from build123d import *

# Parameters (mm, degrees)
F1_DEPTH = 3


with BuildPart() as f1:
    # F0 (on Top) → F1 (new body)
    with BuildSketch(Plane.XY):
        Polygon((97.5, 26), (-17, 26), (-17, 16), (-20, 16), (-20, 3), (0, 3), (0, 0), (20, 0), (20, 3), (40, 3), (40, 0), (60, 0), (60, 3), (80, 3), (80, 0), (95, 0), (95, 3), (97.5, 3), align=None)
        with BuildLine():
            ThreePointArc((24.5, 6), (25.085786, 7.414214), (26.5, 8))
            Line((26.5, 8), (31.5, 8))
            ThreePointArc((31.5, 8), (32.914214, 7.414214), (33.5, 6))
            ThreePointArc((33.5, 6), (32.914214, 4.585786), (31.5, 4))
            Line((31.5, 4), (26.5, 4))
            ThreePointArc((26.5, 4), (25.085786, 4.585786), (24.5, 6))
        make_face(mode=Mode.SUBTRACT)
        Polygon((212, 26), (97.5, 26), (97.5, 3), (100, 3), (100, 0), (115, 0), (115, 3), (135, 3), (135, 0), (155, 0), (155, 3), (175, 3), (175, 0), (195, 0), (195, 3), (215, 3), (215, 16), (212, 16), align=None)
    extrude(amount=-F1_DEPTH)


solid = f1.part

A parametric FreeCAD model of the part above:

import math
import FreeCAD as App
import Part
import Sketcher
from FreeCAD import Vector
Q = App.Units.Quantity

doc = App.newDocument("Part")
body = doc.addObject("PartDesign::Body", "Body")

sketch1 = body.newObject("Sketcher::SketchObject", "Sketch")
sketch1.AttachmentSupport = (doc.getObject("XY_Plane"), [""])
sketch1.MapMode = "FlatFace"
sketch1.addGeometry(Part.LineSegment(Vector(-17, 26, 0), Vector(-17, 16, 0)), False)
sketch1.addGeometry(Part.LineSegment(Vector(-17, 16, 0), Vector(-20, 16, 0)), False)
sketch1.addGeometry(Part.LineSegment(Vector(-20, 16, 0), Vector(-20, 3, 0)), False)
sketch1.addGeometry(Part.LineSegment(Vector(-20, 3, 0), Vector(0, 3, 0)), False)
sketch1.addGeometry(Part.LineSegment(Vector(0, 3, 0), Vector(0, 0, 0)), False)
sketch1.addGeometry(Part.LineSegment(Vector(0, 0, 0), Vector(20, 0, 0)), False)
sketch1.addGeometry(Part.LineSegment(Vector(20, 0, 0), Vector(20, 3, 0)), False)
sketch1.addGeometry(Part.LineSegment(Vector(20, 3, 0), Vector(40, 3, 0)), False)
sketch1.addGeometry(Part.LineSegment(Vector(40, 3, 0), Vector(40, 0, 0)), False)
sketch1.addGeometry(Part.LineSegment(Vector(40, 0, 0), Vector(60, 0, 0)), False)
sketch1.addGeometry(Part.LineSegment(Vector(60, 0, 0), Vector(60, 3, 0)), False)
sketch1.addGeometry(Part.LineSegment(Vector(60, 3, 0), Vector(80, 3, 0)), False)
sketch1.addGeometry(Part.LineSegment(Vector(80, 3, 0), Vector(80, 0, 0)), False)
sketch1.addGeometry(Part.LineSegment(Vector(80, 0, 0), Vector(95, 0, 0)), False)
sketch1.addGeometry(Part.LineSegment(Vector(95, 0, 0), Vector(95, 3, 0)), False)
sketch1.addGeometry(Part.LineSegment(Vector(95, 3, 0), Vector(100, 3, 0)), False)
sketch1.addGeometry(Part.LineSegment(Vector(100, 3, 0), Vector(100, 0, 0)), False)
sketch1.addGeometry(Part.LineSegment(Vector(100, 0, 0), Vector(115, 0, 0)), False)
sketch1.addGeometry(Part.LineSegment(Vector(115, 0, 0), Vector(115, 3, 0)), False)
sketch1.addGeometry(Part.LineSegment(Vector(115, 3, 0), Vector(135, 3, 0)), False)
sketch1.addGeometry(Part.LineSegment(Vector(135, 3, 0), Vector(135, 0, 0)), False)
sketch1.addGeometry(Part.LineSegment(Vector(135, 0, 0), Vector(155, 0, 0)), False)
sketch1.addGeometry(Part.LineSegment(Vector(155, 0, 0), Vector(155, 3, 0)), False)
sketch1.addGeometry(Part.LineSegment(Vector(155, 3, 0), Vector(175, 3, 0)), False)
sketch1.addGeometry(Part.LineSegment(Vector(175, 3, 0), Vector(175, 0, 0)), False)
sketch1.addGeometry(Part.LineSegment(Vector(175, 0, 0), Vector(195, 0, 0)), False)
sketch1.addGeometry(Part.LineSegment(Vector(195, 0, 0), Vector(195, 3, 0)), False)
sketch1.addGeometry(Part.LineSegment(Vector(195, 3, 0), Vector(215, 3, 0)), False)
sketch1.addGeometry(Part.LineSegment(Vector(215, 3, 0), Vector(215, 16, 0)), False)
sketch1.addGeometry(Part.LineSegment(Vector(215, 16, 0), Vector(212, 16, 0)), False)
sketch1.addGeometry(Part.LineSegment(Vector(212, 16, 0), Vector(212, 26, 0)), False)
sketch1.addGeometry(Part.LineSegment(Vector(212, 26, 0), Vector(-17, 26, 0)), False)
sketch1.addGeometry(Part.ArcOfCircle(Part.Circle(Vector(26.5, 6, 0), Vector(0, 0, 1), 2), math.radians(180), math.radians(270)), False)
sketch1.addGeometry(Part.ArcOfCircle(Part.Circle(Vector(26.5, 6, 0), Vector(0, 0, 1), 2), math.radians(90), math.radians(180)), False)
sketch1.addGeometry(Part.LineSegment(Vector(26.5, 8, 0), Vector(31.5, 8, 0)), False)
sketch1.addGeometry(Part.ArcOfCircle(Part.Circle(Vector(31.5, 6, 0), Vector(0, 0, 1), 2), math.radians(0), math.radians(90)), False)
sketch1.addGeometry(Part.ArcOfCircle(Part.Circle(Vector(31.5, 6, 0), Vector(0, 0, 1), 2), math.radians(-90), math.radians(0)), False)
sketch1.addGeometry(Part.LineSegment(Vector(31.5, 4, 0), Vector(26.5, 4, 0)), False)
sketch1.addConstraint(Sketcher.Constraint("Coincident", 0, 2, 1, 1))
sketch1.addConstraint(Sketcher.Constraint("Coincident", 1, 2, 2, 1))
sketch1.addConstraint(Sketcher.Constraint("Coincident", 2, 2, 3, 1))
sketch1.addConstraint(Sketcher.Constraint("Coincident", 3, 2, 4, 1))
sketch1.addConstraint(Sketcher.Constraint("Coincident", 4, 2, 5, 1))
sketch1.addConstraint(Sketcher.Constraint("Coincident", 5, 2, 6, 1))
sketch1.addConstraint(Sketcher.Constraint("Coincident", 6, 2, 7, 1))
sketch1.addConstraint(Sketcher.Constraint("Coincident", 7, 2, 8, 1))
sketch1.addConstraint(Sketcher.Constraint("Coincident", 8, 2, 9, 1))
sketch1.addConstraint(Sketcher.Constraint("Coincident", 9, 2, 10, 1))
sketch1.addConstraint(Sketcher.Constraint("Coincident", 10, 2, 11, 1))
sketch1.addConstraint(Sketcher.Constraint("Coincident", 11, 2, 12, 1))
sketch1.addConstraint(Sketcher.Constraint("Coincident", 12, 2, 13, 1))
sketch1.addConstraint(Sketcher.Constraint("Coincident", 13, 2, 14, 1))
sketch1.addConstraint(Sketcher.Constraint("Coincident", 14, 2, 15, 1))
sketch1.addConstraint(Sketcher.Constraint("Coincident", 15, 2, 16, 1))
sketch1.addConstraint(Sketcher.Constraint("Coincident", 16, 2, 17, 1))
sketch1.addConstraint(Sketcher.Constraint("Coincident", 17, 2, 18, 1))
sketch1.addConstraint(Sketcher.Constraint("Coincident", 18, 2, 19, 1))
sketch1.addConstraint(Sketcher.Constraint("Coincident", 19, 2, 20, 1))
sketch1.addConstraint(Sketcher.Constraint("Coincident", 20, 2, 21, 1))
sketch1.addConstraint(Sketcher.Constraint("Coincident", 21, 2, 22, 1))
sketch1.addConstraint(Sketcher.Constraint("Coincident", 22, 2, 23, 1))
sketch1.addConstraint(Sketcher.Constraint("Coincident", 23, 2, 24, 1))
sketch1.addConstraint(Sketcher.Constraint("Coincident", 24, 2, 25, 1))
sketch1.addConstraint(Sketcher.Constraint("Coincident", 25, 2, 26, 1))
sketch1.addConstraint(Sketcher.Constraint("Coincident", 26, 2, 27, 1))
sketch1.addConstraint(Sketcher.Constraint("Coincident", 27, 2, 28, 1))
sketch1.addConstraint(Sketcher.Constraint("Coincident", 28, 2, 29, 1))
sketch1.addConstraint(Sketcher.Constraint("Coincident", 29, 2, 30, 1))
sketch1.addConstraint(Sketcher.Constraint("Coincident", 30, 2, 31, 1))
sketch1.addConstraint(Sketcher.Constraint("Coincident", 31, 2, 0, 1))
sketch1.addConstraint(Sketcher.Constraint("Tangent", 32, 1, 33, 2))
sketch1.addConstraint(Sketcher.Constraint("Tangent", 33, 1, 34, 1))
sketch1.addConstraint(Sketcher.Constraint("Tangent", 34, 2, 35, 2))
sketch1.addConstraint(Sketcher.Constraint("Tangent", 35, 1, 36, 2))
sketch1.addConstraint(Sketcher.Constraint("Tangent", 36, 1, 37, 1))
sketch1.addConstraint(Sketcher.Constraint("Tangent", 37, 2, 32, 2))
sketch1.addConstraint(Sketcher.Constraint("Vertical", 0))
sketch1.addConstraint(Sketcher.Constraint("Horizontal", 1))
sketch1.addConstraint(Sketcher.Constraint("Vertical", 2))
sketch1.addConstraint(Sketcher.Constraint("Horizontal", 3))
sketch1.addConstraint(Sketcher.Constraint("Vertical", 4))
sketch1.addConstraint(Sketcher.Constraint("Horizontal", 5))
sketch1.addConstraint(Sketcher.Constraint("Vertical", 6))
sketch1.addConstraint(Sketcher.Constraint("Horizontal", 7))
sketch1.addConstraint(Sketcher.Constraint("Vertical", 8))
sketch1.addConstraint(Sketcher.Constraint("Horizontal", 9))
sketch1.addConstraint(Sketcher.Constraint("Vertical", 10))
sketch1.addConstraint(Sketcher.Constraint("Horizontal", 11))
sketch1.addConstraint(Sketcher.Constraint("Vertical", 12))
sketch1.addConstraint(Sketcher.Constraint("Horizontal", 13))
sketch1.addConstraint(Sketcher.Constraint("Vertical", 14))
sketch1.addConstraint(Sketcher.Constraint("Horizontal", 15))
sketch1.addConstraint(Sketcher.Constraint("Vertical", 16))
sketch1.addConstraint(Sketcher.Constraint("Horizontal", 17))
sketch1.addConstraint(Sketcher.Constraint("Vertical", 18))
sketch1.addConstraint(Sketcher.Constraint("Horizontal", 19))
sketch1.addConstraint(Sketcher.Constraint("Vertical", 20))
sketch1.addConstraint(Sketcher.Constraint("Horizontal", 21))
sketch1.addConstraint(Sketcher.Constraint("Vertical", 22))
sketch1.addConstraint(Sketcher.Constraint("Horizontal", 23))
sketch1.addConstraint(Sketcher.Constraint("Vertical", 24))
sketch1.addConstraint(Sketcher.Constraint("Horizontal", 25))
sketch1.addConstraint(Sketcher.Constraint("Vertical", 26))
sketch1.addConstraint(Sketcher.Constraint("Horizontal", 27))
sketch1.addConstraint(Sketcher.Constraint("Vertical", 28))
sketch1.addConstraint(Sketcher.Constraint("Horizontal", 29))
sketch1.addConstraint(Sketcher.Constraint("Vertical", 30))
sketch1.addConstraint(Sketcher.Constraint("Horizontal", 31))
sketch1.addConstraint(Sketcher.Constraint("Horizontal", 34))
sketch1.addConstraint(Sketcher.Constraint("Horizontal", 37))
sketch1.addConstraint(Sketcher.Constraint("Coincident", 4, 2, -1, 1))
sketch1.addConstraint(Sketcher.Constraint("Equal", 32, 33))
sketch1.addConstraint(Sketcher.Constraint("Equal", 33, 35))
sketch1.addConstraint(Sketcher.Constraint("Symmetric", 2, 2, 6, 2, -2))
sketch1.addConstraint(Sketcher.Constraint("PointOnObject", 8, 2, -1))
sketch1.addConstraint(Sketcher.Constraint("PointOnObject", 12, 2, -1))
sketch1.addConstraint(Sketcher.Constraint("PointOnObject", 16, 2, -1))
sketch1.addConstraint(Sketcher.Constraint("PointOnObject", 20, 2, -1))
sketch1.addConstraint(Sketcher.Constraint("PointOnObject", 24, 2, -1))
sketch1.addConstraint(Sketcher.Constraint("Horizontal", 7, 2, 10, 2))
sketch1.addConstraint(Sketcher.Constraint("Horizontal", 11, 2, 14, 2))
sketch1.addConstraint(Sketcher.Constraint("Horizontal", 15, 2, 18, 2))
sketch1.addConstraint(Sketcher.Constraint("Horizontal", 19, 2, 22, 2))
sketch1.addConstraint(Sketcher.Constraint("Horizontal", 23, 2, 26, 2))
sketch1.addConstraint(Sketcher.Constraint("Horizontal", 1, 2, 28, 2))
sketch1.addConstraint(Sketcher.Constraint("Horizontal", 36, 3, 32, 1))
sketch1.addConstraint(Sketcher.Constraint("Horizontal", 32, 1, 35, 1))
sketch1.addConstraint(Sketcher.Constraint("Equal", 5, 7))
sketch1.addConstraint(Sketcher.Constraint("Equal", 7, 9))
sketch1.addConstraint(Sketcher.Constraint("Equal", 9, 11))
sketch1.addConstraint(Sketcher.Constraint("Equal", 13, 17))
sketch1.addConstraint(Sketcher.Constraint("Equal", 11, 19))
sketch1.addConstraint(Sketcher.Constraint("Equal", 19, 21))
sketch1.addConstraint(Sketcher.Constraint("Equal", 21, 23))
sketch1.addConstraint(Sketcher.Constraint("Equal", 23, 25))
sketch1.addConstraint(Sketcher.Constraint("Equal", 25, 27))
sketch1.addConstraint(Sketcher.Constraint("Equal", 1, 29))
sketch1.addConstraint(Sketcher.Constraint("Equal", 15, 34))
sketch1.addConstraint(Sketcher.Constraint("Equal", 29, 4))
sketch1.addConstraint(Sketcher.Constraint("Radius", 32, Q("1.999999 mm")))
sketch1.addConstraint(Sketcher.Constraint("DistanceX", 1, 2, 1, 1, Q("3 mm")))
sketch1.addConstraint(Sketcher.Constraint("DistanceX", 3, 1, 3, 2, Q("20 mm")))
sketch1.addConstraint(Sketcher.Constraint("DistanceX", 13, 1, 13, 2, Q("15 mm")))
sketch1.addConstraint(Sketcher.Constraint("DistanceX", 15, 1, 15, 2, Q("5 mm")))
sketch1.addConstraint(Sketcher.Constraint("DistanceY", 0, 2, 0, 1, Q("10 mm")))
sketch1.addConstraint(Sketcher.Constraint("DistanceY", 2, 2, 2, 1, Q("13 mm")))
sketch1.addConstraint(Sketcher.Constraint("DistanceY", -1, 1, 32, 3, Q("5.999999 mm")))
sketch1.addConstraint(Sketcher.Constraint("DistanceX", -1, 1, 32, 3, Q("26.499999 mm")))
pad1 = body.newObject("PartDesign::Pad", "Pad")
pad1.Profile = sketch1
pad1.Length = 3
pad1.Reversed = True

doc.recompute()
